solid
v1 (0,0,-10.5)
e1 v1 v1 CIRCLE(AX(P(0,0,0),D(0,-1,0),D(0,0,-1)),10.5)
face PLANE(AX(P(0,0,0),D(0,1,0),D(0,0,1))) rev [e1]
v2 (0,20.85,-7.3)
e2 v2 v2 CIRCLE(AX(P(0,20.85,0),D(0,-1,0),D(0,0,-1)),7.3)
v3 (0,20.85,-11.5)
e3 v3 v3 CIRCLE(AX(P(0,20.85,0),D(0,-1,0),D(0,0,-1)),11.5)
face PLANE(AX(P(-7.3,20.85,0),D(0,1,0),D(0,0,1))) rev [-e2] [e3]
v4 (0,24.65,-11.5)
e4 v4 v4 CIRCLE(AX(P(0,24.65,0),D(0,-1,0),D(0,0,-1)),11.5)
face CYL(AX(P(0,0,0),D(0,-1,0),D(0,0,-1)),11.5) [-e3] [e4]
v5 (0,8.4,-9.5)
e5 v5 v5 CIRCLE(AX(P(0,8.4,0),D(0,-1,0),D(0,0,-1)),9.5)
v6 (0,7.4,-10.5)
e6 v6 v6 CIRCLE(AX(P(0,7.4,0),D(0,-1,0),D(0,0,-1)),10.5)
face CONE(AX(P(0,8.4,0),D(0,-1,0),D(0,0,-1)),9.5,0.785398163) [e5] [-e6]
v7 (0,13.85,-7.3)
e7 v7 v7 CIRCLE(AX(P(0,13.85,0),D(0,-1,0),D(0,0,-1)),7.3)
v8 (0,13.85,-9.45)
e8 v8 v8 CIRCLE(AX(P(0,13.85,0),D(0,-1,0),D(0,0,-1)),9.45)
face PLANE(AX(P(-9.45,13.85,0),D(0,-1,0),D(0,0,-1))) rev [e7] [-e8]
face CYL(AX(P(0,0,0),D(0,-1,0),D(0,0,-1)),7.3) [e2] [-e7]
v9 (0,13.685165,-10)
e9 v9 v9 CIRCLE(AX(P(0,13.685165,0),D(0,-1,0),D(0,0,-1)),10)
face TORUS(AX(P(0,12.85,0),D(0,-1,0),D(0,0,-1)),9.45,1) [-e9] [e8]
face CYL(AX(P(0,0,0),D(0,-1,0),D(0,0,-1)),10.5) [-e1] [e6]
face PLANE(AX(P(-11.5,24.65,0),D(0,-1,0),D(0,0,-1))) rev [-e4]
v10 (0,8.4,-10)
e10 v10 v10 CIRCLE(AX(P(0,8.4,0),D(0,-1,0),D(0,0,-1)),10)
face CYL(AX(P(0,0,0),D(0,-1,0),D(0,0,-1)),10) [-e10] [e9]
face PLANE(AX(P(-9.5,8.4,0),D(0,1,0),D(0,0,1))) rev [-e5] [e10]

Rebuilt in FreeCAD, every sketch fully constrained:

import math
import FreeCAD as App
import Part
import Sketcher
from FreeCAD import Vector
Q = App.Units.Quantity

doc = App.newDocument("Part")
params = doc.addObject("Spreadsheet::Sheet", "Params")
for row, (alias, value) in enumerate([
    ("sketch1_radius", "1 mm"),
    ("sketch1_height", "7 mm"),
    ("sketch1_width", "10.5 mm"),
    ("sketch1_width2", "11.5 mm"),
    ("sketch1_width3", "4.2 mm"),
    ("revolution_angle", "360 deg"),
], start=1):
    params.set(f"A{row}", alias)
    params.set(f"B{row}", "=" + value)
    params.setAlias(f"B{row}", alias)

body = doc.addObject("PartDesign::Body", "Body")

sketch1 = body.newObject("Sketcher::SketchObject", "Sketch")
sketch1.AttachmentSupport = (doc.getObject("XY_Plane"), [""])
sketch1.MapMode = "FlatFace"
sketch1.addGeometry([
    Part.LineSegment(Vector(-10.5, 0, 0), Vector(0, 0, 0)),
    Part.LineSegment(Vector(0, 0, 0), Vector(0, 24.6, 0)),
    Part.LineSegment(Vector(0, 24.6, 0), Vector(-11.5, 24.6, 0)),
    Part.LineSegment(Vector(-11.5, 24.6, 0), Vector(-11.5, 20.9, 0)),
    Part.LineSegment(Vector(-11.5, 20.9, 0), Vector(-7.3, 20.9, 0)),
    Part.LineSegment(Vector(-7.3, 20.9, 0), Vector(-7.3, 13.8, 0)),
    Part.LineSegment(Vector(-7.3, 13.8, 0), Vector(-9.4, 13.8, 0)),
    Part.ArcOfCircle(Part.Circle(Vector(-9.5, 12.9, 0), Vector(0, 0, 1), 1), math.radians(90), math.radians(123)),
    Part.LineSegment(Vector(-10, 13.7, 0), Vector(-10, 8.4, 0)),
    Part.LineSegment(Vector(-10, 8.4, 0), Vector(-9.5, 8.4, 0)),
    Part.LineSegment(Vector(-9.5, 8.4, 0), Vector(-10.5, 7.4, 0)),
    Part.LineSegment(Vector(-10.5, 7.4, 0), Vector(-10.5, 0, 0)),
], False)
sketch1.addConstraint([
    Sketcher.Constraint("Coincident", 0, 2, 1, 1),
    Sketcher.Constraint("Coincident", 1, 2, 2, 1),
    Sketcher.Constraint("Coincident", 2, 2, 3, 1),
    Sketcher.Constraint("Coincident", 3, 2, 4, 1),
    Sketcher.Constraint("Coincident", 4, 2, 5, 1),
    Sketcher.Constraint("Coincident", 5, 2, 6, 1),
    Sketcher.Constraint("Tangent", 6, 2, 7, 1),
    Sketcher.Constraint("Coincident", 7, 2, 8, 1),
    Sketcher.Constraint("Coincident", 8, 2, 9, 1),
    Sketcher.Constraint("Coincident", 9, 2, 10, 1),
    Sketcher.Constraint("Coincident", 10, 2, 11, 1),
    Sketcher.Constraint("Coincident", 11, 2, 0, 1),
    Sketcher.Constraint("Horizontal", 0),
    Sketcher.Constraint("Vertical", 1),
    Sketcher.Constraint("Horizontal", 2),
    Sketcher.Constraint("Vertical", 3),
    Sketcher.Constraint("Horizontal", 4),
    Sketcher.Constraint("Vertical", 5),
    Sketcher.Constraint("Horizontal", 6),
    Sketcher.Constraint("Vertical", 8),
    Sketcher.Constraint("Horizontal", 9),
    Sketcher.Constraint("Vertical", 11),
    Sketcher.Constraint("Coincident", 0, 2, -1, 1),
    Sketcher.Constraint("Radius", 7, Q("1 mm")),
    Sketcher.Constraint("DistanceY", 5, 2, 5, 1, Q("7 mm")),
    Sketcher.Constraint("Angle", 10, Q("-135 deg")),
    Sketcher.Constraint("DistanceX", 0, 1, 0, 2, Q("10.5 mm")),
    Sketcher.Constraint("DistanceX", 2, 2, 2, 1, Q("11.5 mm")),
    Sketcher.Constraint("DistanceX", 4, 1, 4, 2, Q("4.2 mm")),
    Sketcher.Constraint("DistanceX", 9, 1, 9, 2, Q("0.5 mm")),
    Sketcher.Constraint("DistanceY", 3, 2, 3, 1, Q("3.8 mm")),
    Sketcher.Constraint("DistanceY", 11, 2, 11, 1, Q("7.4 mm")),
    Sketcher.Constraint("DistanceX", 7, 2, -1, 1, Q("10 mm")),
    Sketcher.Constraint("DistanceX", 6, 2, 6, 1, Q("2.15 mm")),
    Sketcher.Constraint("DistanceY", 1, 1, 1, 2, Q("24.65 mm")),
])
sketch1.setExpression("Constraints[23]", "Params.sketch1_radius")
sketch1.setExpression("Constraints[24]", "Params.sketch1_height")
sketch1.setExpression("Constraints[26]", "Params.sketch1_width")
sketch1.setExpression("Constraints[27]", "Params.sketch1_width2")
sketch1.setExpression("Constraints[28]", "Params.sketch1_width3")
revolution = body.newObject("PartDesign::Revolution", "Revolution")
revolution.Profile = sketch1
revolution.ReferenceAxis = (sketch1, ["V_Axis"])
revolution.setExpression("Angle", "Params.revolution_angle")

doc.recompute()
